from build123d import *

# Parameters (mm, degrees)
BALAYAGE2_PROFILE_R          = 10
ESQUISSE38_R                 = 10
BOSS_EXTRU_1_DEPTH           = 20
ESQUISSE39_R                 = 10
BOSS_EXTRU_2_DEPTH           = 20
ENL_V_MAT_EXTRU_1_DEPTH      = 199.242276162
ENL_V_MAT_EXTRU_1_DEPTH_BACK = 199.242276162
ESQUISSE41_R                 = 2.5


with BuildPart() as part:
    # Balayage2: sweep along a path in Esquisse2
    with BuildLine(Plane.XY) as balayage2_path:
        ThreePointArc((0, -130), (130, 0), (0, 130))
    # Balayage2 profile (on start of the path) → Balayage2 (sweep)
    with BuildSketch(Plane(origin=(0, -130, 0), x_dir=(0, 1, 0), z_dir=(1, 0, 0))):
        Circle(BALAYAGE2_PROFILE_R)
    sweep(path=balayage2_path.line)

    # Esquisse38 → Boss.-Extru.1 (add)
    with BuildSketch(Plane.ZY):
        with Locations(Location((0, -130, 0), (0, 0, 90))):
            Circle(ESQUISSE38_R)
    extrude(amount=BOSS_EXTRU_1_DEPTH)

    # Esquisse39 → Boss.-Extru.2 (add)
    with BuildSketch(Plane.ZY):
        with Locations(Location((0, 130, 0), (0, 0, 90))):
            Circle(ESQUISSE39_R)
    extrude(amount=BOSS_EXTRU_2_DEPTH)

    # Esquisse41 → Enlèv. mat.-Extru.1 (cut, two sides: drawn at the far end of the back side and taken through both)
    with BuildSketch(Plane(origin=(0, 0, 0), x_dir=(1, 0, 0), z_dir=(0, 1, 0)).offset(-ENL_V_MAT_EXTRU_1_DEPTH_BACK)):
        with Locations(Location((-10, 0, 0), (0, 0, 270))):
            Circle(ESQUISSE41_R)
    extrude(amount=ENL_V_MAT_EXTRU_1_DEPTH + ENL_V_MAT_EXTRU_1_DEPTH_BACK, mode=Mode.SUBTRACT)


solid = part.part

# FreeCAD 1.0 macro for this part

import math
import FreeCAD as App
import Part
import Sketcher
Q = App.Units.Quantity

doc = App.newDocument("Part")
params = doc.addObject("Spreadsheet::Sheet", "Params")
for row, (alias, value) in enumerate([
    ("sketch1_diameter", "20 mm"),
    ("sketch2_radius", "130 mm"),
    ("sketch3_diameter", "20 mm"),
    ("pad1_length", "20 mm"),
    ("sketch4_diameter", "20 mm"),
    ("pad2_length", "20 mm"),
    ("sketch5_diameter", "5 mm"),
], start=1):
    params.set(f"A{row}", alias)
    params.set(f"B{row}", "=" + value)
    params.setAlias(f"B{row}", alias)

body = doc.addObject("PartDesign::Body", "Body")

sketch1 = body.newObject("Sketcher::SketchObject", "Sketch")
sketch1.AttachmentSupport = (doc.getObject("YZ_Plane"), [""])
sketch1.MapMode = "FlatFace"
sketch1.addGeometry(Part.Circle(App.Vector(-130, 0, 0), App.Vector(0, 0, 1), 10), False)
sketch1.addConstraint([
    Sketcher.Constraint("PointOnObject", 0, 3, -1),
    Sketcher.Constraint("Diameter", 0, Q("20 mm")),
    Sketcher.Constraint("DistanceX", 0, 3, -1, 1, Q("130 mm")),
])
sketch1.setExpression("Constraints[1]", "Params.sketch1_diameter")

sketch2 = body.newObject("Sketcher::SketchObject", "Sketch001")
sketch2.AttachmentSupport = (doc.getObject("XY_Plane"), [""])
sketch2.MapMode = "FlatFace"
sketch2.addGeometry(Part.ArcOfCircle(Part.Circle(App.Vector(0, 0, 0), App.Vector(0, 0, 1), 130), math.radians(-90), math.radians(90)), False)
sketch2.addConstraint([
    Sketcher.Constraint("Coincident", 0, 3, -1, 1),
    Sketcher.Constraint("PointOnObject", 0, 1, -2),
    Sketcher.Constraint("PointOnObject", 0, 2, -2),
    Sketcher.Constraint("Radius", 0, Q("130 mm")),
])
sketch2.setExpression("Constraints[3]", "Params.sketch2_radius")
doc.recompute()

additivepipe = body.newObject("PartDesign::AdditivePipe", "AdditivePipe")
additivepipe.Profile = sketch1
additivepipe.Spine = (sketch2, ["Edge1"])

sketch3 = body.newObject("Sketcher::SketchObject", "Sketch002")
sketch3.AttachmentSupport = (doc.getObject("YZ_Plane"), [""])
sketch3.MapMode = "FlatFace"
sketch3.addGeometry(Part.Circle(App.Vector(-130, 0, 0), App.Vector(0, 0, 1), 10), False)
sketch3.addConstraint([
    Sketcher.Constraint("PointOnObject", 0, 3, -1),
    Sketcher.Constraint("Diameter", 0, Q("20 mm")),
    Sketcher.Constraint("DistanceX", 0, 3, -1, 1, Q("130 mm")),
])
sketch3.setExpression("Constraints[1]", "Params.sketch3_diameter")
pad1 = body.newObject("PartDesign::Pad", "Pad")
pad1.Profile = sketch3
pad1.setExpression("Length", "Params.pad1_length")
pad1.Reversed = True

sketch4 = body.newObject("Sketcher::SketchObject", "Sketch003")
sketch4.AttachmentSupport = (doc.getObject("YZ_Plane"), [""])
sketch4.MapMode = "FlatFace"
sketch4.addGeometry(Part.Circle(App.Vector(130, 0, 0), App.Vector(0, 0, 1), 10), False)
sketch4.addConstraint([
    Sketcher.Constraint("PointOnObject", 0, 3, -1),
    Sketcher.Constraint("Diameter", 0, Q("20 mm")),
    Sketcher.Constraint("DistanceX", -1, 1, 0, 3, Q("130 mm")),
])
sketch4.setExpression("Constraints[1]", "Params.sketch4_diameter")
pad2 = body.newObject("PartDesign::Pad", "Pad001")
pad2.Profile = sketch4
pad2.setExpression("Length", "Params.pad2_length")
pad2.Reversed = True

sketch5 = body.newObject("Sketcher::SketchObject", "Sketch004")
sketch5.AttachmentSupport = (doc.getObject("XZ_Plane"), [""])
sketch5.MapMode = "FlatFace"
sketch5.addGeometry(Part.Circle(App.Vector(-10, 0, 0), App.Vector(0, 0, 1), 2.5), False)
sketch5.addConstraint([
    Sketcher.Constraint("PointOnObject", 0, 3, -1),
    Sketcher.Constraint("Diameter", 0, Q("5 mm")),
    Sketcher.Constraint("DistanceX", 0, 3, -1, 1, Q("10 mm")),
])
sketch5.setExpression("Constraints[1]", "Params.sketch5_diameter")
pocket1 = body.newObject("PartDesign::Pocket", "Pocket")
pocket1.Profile = sketch5
pocket1.Type = "ThroughAll"
pocket1.Midplane = True

doc.recompute()
